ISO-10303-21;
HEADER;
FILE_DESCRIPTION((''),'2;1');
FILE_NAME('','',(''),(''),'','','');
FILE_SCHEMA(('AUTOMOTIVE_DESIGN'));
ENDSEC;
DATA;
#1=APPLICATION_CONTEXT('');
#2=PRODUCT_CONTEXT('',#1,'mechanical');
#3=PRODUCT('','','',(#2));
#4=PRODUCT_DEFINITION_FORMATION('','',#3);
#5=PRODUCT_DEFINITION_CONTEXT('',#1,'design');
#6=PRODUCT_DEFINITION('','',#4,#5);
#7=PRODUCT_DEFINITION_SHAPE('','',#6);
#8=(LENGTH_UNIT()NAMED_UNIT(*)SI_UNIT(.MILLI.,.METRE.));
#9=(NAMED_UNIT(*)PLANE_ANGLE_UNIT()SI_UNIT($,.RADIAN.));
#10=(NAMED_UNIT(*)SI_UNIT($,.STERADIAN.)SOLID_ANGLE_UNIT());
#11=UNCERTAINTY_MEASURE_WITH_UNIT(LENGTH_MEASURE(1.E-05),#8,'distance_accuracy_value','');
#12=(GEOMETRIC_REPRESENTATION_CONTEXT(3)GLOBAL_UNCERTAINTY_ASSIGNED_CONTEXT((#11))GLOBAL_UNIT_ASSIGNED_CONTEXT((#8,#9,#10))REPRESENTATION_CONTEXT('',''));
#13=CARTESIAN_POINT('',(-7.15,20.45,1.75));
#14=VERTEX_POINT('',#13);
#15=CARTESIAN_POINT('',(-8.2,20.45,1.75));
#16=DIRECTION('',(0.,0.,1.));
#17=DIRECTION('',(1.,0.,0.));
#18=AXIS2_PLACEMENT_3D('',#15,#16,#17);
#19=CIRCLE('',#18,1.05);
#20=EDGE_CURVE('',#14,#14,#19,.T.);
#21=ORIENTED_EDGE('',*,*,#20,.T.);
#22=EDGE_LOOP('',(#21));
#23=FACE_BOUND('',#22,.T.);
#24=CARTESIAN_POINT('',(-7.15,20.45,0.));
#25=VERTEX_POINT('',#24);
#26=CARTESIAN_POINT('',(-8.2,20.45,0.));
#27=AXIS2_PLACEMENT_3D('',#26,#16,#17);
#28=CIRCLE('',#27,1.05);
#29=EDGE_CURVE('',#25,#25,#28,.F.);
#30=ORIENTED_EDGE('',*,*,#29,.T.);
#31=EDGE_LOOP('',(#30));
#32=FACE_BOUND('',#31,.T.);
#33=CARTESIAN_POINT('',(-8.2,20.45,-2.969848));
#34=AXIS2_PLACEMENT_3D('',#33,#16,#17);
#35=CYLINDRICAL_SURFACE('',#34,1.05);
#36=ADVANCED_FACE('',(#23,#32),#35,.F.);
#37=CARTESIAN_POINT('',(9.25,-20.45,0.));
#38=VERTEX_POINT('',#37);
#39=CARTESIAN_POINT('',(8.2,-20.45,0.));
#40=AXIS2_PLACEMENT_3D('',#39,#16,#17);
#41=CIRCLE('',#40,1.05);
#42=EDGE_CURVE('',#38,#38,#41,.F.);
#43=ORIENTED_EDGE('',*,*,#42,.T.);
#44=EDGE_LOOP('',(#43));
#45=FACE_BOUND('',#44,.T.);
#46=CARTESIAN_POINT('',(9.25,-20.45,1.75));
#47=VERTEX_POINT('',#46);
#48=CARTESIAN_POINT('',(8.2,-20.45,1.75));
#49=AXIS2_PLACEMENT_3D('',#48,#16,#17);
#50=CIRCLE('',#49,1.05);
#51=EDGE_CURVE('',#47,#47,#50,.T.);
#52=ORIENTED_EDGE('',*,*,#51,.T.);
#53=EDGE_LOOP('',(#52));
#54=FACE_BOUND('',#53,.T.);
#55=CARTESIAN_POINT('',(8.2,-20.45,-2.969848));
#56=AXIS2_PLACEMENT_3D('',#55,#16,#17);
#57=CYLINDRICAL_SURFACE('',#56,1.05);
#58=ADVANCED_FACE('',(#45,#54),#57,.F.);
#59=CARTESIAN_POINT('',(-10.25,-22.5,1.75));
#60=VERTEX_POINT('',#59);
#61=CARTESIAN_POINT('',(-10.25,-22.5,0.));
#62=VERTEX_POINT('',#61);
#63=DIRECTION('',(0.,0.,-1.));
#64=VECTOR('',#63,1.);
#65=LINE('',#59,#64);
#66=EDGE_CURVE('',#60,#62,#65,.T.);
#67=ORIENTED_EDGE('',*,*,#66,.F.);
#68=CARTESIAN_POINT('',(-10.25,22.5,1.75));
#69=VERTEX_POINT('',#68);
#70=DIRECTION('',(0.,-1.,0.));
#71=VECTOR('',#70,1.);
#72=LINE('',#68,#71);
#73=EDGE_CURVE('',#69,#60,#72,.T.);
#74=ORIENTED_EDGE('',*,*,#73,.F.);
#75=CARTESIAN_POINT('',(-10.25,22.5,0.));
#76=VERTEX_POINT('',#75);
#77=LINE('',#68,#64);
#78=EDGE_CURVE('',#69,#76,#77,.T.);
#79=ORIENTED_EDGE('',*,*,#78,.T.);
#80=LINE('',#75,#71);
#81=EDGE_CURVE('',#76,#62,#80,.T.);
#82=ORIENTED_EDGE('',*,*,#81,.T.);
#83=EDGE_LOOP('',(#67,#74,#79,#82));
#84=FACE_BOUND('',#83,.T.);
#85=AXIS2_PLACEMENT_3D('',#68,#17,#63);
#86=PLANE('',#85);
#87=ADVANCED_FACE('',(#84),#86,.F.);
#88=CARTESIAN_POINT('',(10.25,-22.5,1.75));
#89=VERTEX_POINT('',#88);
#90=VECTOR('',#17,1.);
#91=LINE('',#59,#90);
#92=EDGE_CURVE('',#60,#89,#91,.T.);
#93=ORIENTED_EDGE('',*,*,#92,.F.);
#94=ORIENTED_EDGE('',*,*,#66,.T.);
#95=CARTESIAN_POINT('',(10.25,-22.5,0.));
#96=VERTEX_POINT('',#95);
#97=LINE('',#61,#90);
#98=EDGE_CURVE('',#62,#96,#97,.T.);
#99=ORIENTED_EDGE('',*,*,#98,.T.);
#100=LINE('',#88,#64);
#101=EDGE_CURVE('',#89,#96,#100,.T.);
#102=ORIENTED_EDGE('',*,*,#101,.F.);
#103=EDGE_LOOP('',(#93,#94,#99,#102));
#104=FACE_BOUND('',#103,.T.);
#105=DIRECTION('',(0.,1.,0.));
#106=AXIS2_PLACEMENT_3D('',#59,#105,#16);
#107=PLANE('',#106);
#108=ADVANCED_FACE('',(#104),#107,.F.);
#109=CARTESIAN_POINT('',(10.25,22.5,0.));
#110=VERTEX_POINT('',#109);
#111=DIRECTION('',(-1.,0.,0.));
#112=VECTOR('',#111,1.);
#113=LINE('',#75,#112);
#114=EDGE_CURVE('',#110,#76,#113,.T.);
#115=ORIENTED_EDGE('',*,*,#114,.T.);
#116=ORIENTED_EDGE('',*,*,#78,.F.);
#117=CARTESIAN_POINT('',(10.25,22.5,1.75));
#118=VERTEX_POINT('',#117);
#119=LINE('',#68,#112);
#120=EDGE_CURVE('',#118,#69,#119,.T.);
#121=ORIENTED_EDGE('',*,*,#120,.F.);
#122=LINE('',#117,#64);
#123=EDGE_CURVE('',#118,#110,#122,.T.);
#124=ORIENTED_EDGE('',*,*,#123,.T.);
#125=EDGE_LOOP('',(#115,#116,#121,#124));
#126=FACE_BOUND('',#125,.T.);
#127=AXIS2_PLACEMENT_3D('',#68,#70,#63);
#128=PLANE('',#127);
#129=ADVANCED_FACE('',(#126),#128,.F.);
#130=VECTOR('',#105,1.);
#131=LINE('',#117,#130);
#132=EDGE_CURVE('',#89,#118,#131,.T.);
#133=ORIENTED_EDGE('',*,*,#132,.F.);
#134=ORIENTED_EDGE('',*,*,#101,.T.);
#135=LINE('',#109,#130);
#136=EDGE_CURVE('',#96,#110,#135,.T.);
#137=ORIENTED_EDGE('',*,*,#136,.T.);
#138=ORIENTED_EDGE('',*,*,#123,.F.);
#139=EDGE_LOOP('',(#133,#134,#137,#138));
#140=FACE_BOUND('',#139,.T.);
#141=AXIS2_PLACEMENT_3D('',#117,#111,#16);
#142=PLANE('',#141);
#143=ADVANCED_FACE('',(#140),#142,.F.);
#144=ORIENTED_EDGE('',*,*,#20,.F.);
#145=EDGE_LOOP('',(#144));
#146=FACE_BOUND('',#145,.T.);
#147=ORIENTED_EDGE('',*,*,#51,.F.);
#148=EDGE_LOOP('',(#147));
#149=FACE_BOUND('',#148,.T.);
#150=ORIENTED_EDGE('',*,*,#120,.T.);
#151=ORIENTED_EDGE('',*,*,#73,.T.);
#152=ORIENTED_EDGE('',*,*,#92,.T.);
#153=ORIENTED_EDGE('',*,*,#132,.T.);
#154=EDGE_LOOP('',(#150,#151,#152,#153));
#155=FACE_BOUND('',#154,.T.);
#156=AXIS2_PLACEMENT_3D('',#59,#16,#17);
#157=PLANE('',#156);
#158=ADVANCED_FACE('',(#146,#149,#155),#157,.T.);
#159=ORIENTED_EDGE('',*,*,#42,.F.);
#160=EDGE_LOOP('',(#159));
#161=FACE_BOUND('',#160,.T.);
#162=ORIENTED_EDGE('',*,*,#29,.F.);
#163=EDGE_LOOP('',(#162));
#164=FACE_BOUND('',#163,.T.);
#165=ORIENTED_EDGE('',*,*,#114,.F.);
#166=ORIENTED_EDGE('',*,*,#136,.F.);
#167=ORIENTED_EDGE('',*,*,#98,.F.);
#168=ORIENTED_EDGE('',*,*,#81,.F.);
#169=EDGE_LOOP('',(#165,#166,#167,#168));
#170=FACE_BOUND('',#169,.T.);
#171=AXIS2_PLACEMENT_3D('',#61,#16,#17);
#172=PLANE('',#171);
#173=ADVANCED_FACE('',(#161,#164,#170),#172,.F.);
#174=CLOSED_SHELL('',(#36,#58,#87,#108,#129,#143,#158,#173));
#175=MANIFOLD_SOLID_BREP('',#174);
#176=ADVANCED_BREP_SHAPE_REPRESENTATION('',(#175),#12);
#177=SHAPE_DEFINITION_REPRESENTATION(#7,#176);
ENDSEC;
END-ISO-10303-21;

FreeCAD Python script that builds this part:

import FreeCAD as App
import Part
import Sketcher


def add_polygon(sketch, points):
    """Adds a closed chain of lines whose ends are joined by coincident constraints."""
    first, n = sketch.GeometryCount, len(points)
    for a, b in zip(points, points[1:] + points[:1]):
        sketch.addGeometry(Part.LineSegment(App.Vector(*a, 0), App.Vector(*b, 0)), False)
    for i in range(n):
        sketch.addConstraint(Sketcher.Constraint("Coincident", first + i, 2, first + (i + 1) % n, 1))

doc = App.newDocument("Part")
body = doc.addObject("PartDesign::Body", "Body")

sketch1 = doc.addObject("Sketcher::SketchObject", "Sketch")
body.addObject(sketch1)
sketch1.AttachmentSupport = (doc.XY_Plane, [""])
sketch1.MapMode = "FlatFace"
add_polygon(sketch1, [(-10, 22), (-10, -22), (10, -22), (10, 22)])
sketch1.addConstraint([
    Sketcher.Constraint("Vertical", 0),
    Sketcher.Constraint("Horizontal", 1),
    Sketcher.Constraint("Vertical", 2),
    Sketcher.Constraint("Horizontal", 3),
    Sketcher.Constraint("Symmetric", 0, 2, 2, 2, -1, 1),
    Sketcher.Constraint("DistanceY", 0, 2, 0, 1, 45.0),
    Sketcher.Constraint("DistanceX", 1, 1, 1, 2, 20.5),
])
pad1 = doc.addObject("PartDesign::Pad", "Pad")
body.addObject(pad1)
pad1.Profile = sketch1
pad1.Length = 1.75

sketch2 = doc.addObject("Sketcher::SketchObject", "Sketch001")
body.addObject(sketch2)
sketch2.AttachmentSupport = (doc.XY_Plane, [""])
sketch2.MapMode = "FlatFace"
sketch2.AttachmentOffset = App.Placement(App.Vector(0, 0, 1.75), App.Rotation())
sketch2.addGeometry([
    Part.Circle(App.Vector(8.2, -20.4, 0), App.Vector(0, 0, 1), 1.1),
    Part.Circle(App.Vector(-8.2, 20.4, 0), App.Vector(0, 0, 1), 1.1),
], False)
sketch2.addConstraint([
    Sketcher.Constraint("Equal", 0, 1),
    Sketcher.Constraint("Symmetric", 0, 3, 1, 3, -1, 1),
    Sketcher.Constraint("Diameter", 0, 2.1),
    Sketcher.Constraint("DistanceX", -1, 1, 0, 3, 8.2),
    Sketcher.Constraint("DistanceY", 0, 3, 1, 3, 40.9),
])
pocket1 = doc.addObject("PartDesign::Pocket", "Pocket")
body.addObject(pocket1)
pocket1.Profile = sketch2
pocket1.Length = 1.75

doc.recompute()
